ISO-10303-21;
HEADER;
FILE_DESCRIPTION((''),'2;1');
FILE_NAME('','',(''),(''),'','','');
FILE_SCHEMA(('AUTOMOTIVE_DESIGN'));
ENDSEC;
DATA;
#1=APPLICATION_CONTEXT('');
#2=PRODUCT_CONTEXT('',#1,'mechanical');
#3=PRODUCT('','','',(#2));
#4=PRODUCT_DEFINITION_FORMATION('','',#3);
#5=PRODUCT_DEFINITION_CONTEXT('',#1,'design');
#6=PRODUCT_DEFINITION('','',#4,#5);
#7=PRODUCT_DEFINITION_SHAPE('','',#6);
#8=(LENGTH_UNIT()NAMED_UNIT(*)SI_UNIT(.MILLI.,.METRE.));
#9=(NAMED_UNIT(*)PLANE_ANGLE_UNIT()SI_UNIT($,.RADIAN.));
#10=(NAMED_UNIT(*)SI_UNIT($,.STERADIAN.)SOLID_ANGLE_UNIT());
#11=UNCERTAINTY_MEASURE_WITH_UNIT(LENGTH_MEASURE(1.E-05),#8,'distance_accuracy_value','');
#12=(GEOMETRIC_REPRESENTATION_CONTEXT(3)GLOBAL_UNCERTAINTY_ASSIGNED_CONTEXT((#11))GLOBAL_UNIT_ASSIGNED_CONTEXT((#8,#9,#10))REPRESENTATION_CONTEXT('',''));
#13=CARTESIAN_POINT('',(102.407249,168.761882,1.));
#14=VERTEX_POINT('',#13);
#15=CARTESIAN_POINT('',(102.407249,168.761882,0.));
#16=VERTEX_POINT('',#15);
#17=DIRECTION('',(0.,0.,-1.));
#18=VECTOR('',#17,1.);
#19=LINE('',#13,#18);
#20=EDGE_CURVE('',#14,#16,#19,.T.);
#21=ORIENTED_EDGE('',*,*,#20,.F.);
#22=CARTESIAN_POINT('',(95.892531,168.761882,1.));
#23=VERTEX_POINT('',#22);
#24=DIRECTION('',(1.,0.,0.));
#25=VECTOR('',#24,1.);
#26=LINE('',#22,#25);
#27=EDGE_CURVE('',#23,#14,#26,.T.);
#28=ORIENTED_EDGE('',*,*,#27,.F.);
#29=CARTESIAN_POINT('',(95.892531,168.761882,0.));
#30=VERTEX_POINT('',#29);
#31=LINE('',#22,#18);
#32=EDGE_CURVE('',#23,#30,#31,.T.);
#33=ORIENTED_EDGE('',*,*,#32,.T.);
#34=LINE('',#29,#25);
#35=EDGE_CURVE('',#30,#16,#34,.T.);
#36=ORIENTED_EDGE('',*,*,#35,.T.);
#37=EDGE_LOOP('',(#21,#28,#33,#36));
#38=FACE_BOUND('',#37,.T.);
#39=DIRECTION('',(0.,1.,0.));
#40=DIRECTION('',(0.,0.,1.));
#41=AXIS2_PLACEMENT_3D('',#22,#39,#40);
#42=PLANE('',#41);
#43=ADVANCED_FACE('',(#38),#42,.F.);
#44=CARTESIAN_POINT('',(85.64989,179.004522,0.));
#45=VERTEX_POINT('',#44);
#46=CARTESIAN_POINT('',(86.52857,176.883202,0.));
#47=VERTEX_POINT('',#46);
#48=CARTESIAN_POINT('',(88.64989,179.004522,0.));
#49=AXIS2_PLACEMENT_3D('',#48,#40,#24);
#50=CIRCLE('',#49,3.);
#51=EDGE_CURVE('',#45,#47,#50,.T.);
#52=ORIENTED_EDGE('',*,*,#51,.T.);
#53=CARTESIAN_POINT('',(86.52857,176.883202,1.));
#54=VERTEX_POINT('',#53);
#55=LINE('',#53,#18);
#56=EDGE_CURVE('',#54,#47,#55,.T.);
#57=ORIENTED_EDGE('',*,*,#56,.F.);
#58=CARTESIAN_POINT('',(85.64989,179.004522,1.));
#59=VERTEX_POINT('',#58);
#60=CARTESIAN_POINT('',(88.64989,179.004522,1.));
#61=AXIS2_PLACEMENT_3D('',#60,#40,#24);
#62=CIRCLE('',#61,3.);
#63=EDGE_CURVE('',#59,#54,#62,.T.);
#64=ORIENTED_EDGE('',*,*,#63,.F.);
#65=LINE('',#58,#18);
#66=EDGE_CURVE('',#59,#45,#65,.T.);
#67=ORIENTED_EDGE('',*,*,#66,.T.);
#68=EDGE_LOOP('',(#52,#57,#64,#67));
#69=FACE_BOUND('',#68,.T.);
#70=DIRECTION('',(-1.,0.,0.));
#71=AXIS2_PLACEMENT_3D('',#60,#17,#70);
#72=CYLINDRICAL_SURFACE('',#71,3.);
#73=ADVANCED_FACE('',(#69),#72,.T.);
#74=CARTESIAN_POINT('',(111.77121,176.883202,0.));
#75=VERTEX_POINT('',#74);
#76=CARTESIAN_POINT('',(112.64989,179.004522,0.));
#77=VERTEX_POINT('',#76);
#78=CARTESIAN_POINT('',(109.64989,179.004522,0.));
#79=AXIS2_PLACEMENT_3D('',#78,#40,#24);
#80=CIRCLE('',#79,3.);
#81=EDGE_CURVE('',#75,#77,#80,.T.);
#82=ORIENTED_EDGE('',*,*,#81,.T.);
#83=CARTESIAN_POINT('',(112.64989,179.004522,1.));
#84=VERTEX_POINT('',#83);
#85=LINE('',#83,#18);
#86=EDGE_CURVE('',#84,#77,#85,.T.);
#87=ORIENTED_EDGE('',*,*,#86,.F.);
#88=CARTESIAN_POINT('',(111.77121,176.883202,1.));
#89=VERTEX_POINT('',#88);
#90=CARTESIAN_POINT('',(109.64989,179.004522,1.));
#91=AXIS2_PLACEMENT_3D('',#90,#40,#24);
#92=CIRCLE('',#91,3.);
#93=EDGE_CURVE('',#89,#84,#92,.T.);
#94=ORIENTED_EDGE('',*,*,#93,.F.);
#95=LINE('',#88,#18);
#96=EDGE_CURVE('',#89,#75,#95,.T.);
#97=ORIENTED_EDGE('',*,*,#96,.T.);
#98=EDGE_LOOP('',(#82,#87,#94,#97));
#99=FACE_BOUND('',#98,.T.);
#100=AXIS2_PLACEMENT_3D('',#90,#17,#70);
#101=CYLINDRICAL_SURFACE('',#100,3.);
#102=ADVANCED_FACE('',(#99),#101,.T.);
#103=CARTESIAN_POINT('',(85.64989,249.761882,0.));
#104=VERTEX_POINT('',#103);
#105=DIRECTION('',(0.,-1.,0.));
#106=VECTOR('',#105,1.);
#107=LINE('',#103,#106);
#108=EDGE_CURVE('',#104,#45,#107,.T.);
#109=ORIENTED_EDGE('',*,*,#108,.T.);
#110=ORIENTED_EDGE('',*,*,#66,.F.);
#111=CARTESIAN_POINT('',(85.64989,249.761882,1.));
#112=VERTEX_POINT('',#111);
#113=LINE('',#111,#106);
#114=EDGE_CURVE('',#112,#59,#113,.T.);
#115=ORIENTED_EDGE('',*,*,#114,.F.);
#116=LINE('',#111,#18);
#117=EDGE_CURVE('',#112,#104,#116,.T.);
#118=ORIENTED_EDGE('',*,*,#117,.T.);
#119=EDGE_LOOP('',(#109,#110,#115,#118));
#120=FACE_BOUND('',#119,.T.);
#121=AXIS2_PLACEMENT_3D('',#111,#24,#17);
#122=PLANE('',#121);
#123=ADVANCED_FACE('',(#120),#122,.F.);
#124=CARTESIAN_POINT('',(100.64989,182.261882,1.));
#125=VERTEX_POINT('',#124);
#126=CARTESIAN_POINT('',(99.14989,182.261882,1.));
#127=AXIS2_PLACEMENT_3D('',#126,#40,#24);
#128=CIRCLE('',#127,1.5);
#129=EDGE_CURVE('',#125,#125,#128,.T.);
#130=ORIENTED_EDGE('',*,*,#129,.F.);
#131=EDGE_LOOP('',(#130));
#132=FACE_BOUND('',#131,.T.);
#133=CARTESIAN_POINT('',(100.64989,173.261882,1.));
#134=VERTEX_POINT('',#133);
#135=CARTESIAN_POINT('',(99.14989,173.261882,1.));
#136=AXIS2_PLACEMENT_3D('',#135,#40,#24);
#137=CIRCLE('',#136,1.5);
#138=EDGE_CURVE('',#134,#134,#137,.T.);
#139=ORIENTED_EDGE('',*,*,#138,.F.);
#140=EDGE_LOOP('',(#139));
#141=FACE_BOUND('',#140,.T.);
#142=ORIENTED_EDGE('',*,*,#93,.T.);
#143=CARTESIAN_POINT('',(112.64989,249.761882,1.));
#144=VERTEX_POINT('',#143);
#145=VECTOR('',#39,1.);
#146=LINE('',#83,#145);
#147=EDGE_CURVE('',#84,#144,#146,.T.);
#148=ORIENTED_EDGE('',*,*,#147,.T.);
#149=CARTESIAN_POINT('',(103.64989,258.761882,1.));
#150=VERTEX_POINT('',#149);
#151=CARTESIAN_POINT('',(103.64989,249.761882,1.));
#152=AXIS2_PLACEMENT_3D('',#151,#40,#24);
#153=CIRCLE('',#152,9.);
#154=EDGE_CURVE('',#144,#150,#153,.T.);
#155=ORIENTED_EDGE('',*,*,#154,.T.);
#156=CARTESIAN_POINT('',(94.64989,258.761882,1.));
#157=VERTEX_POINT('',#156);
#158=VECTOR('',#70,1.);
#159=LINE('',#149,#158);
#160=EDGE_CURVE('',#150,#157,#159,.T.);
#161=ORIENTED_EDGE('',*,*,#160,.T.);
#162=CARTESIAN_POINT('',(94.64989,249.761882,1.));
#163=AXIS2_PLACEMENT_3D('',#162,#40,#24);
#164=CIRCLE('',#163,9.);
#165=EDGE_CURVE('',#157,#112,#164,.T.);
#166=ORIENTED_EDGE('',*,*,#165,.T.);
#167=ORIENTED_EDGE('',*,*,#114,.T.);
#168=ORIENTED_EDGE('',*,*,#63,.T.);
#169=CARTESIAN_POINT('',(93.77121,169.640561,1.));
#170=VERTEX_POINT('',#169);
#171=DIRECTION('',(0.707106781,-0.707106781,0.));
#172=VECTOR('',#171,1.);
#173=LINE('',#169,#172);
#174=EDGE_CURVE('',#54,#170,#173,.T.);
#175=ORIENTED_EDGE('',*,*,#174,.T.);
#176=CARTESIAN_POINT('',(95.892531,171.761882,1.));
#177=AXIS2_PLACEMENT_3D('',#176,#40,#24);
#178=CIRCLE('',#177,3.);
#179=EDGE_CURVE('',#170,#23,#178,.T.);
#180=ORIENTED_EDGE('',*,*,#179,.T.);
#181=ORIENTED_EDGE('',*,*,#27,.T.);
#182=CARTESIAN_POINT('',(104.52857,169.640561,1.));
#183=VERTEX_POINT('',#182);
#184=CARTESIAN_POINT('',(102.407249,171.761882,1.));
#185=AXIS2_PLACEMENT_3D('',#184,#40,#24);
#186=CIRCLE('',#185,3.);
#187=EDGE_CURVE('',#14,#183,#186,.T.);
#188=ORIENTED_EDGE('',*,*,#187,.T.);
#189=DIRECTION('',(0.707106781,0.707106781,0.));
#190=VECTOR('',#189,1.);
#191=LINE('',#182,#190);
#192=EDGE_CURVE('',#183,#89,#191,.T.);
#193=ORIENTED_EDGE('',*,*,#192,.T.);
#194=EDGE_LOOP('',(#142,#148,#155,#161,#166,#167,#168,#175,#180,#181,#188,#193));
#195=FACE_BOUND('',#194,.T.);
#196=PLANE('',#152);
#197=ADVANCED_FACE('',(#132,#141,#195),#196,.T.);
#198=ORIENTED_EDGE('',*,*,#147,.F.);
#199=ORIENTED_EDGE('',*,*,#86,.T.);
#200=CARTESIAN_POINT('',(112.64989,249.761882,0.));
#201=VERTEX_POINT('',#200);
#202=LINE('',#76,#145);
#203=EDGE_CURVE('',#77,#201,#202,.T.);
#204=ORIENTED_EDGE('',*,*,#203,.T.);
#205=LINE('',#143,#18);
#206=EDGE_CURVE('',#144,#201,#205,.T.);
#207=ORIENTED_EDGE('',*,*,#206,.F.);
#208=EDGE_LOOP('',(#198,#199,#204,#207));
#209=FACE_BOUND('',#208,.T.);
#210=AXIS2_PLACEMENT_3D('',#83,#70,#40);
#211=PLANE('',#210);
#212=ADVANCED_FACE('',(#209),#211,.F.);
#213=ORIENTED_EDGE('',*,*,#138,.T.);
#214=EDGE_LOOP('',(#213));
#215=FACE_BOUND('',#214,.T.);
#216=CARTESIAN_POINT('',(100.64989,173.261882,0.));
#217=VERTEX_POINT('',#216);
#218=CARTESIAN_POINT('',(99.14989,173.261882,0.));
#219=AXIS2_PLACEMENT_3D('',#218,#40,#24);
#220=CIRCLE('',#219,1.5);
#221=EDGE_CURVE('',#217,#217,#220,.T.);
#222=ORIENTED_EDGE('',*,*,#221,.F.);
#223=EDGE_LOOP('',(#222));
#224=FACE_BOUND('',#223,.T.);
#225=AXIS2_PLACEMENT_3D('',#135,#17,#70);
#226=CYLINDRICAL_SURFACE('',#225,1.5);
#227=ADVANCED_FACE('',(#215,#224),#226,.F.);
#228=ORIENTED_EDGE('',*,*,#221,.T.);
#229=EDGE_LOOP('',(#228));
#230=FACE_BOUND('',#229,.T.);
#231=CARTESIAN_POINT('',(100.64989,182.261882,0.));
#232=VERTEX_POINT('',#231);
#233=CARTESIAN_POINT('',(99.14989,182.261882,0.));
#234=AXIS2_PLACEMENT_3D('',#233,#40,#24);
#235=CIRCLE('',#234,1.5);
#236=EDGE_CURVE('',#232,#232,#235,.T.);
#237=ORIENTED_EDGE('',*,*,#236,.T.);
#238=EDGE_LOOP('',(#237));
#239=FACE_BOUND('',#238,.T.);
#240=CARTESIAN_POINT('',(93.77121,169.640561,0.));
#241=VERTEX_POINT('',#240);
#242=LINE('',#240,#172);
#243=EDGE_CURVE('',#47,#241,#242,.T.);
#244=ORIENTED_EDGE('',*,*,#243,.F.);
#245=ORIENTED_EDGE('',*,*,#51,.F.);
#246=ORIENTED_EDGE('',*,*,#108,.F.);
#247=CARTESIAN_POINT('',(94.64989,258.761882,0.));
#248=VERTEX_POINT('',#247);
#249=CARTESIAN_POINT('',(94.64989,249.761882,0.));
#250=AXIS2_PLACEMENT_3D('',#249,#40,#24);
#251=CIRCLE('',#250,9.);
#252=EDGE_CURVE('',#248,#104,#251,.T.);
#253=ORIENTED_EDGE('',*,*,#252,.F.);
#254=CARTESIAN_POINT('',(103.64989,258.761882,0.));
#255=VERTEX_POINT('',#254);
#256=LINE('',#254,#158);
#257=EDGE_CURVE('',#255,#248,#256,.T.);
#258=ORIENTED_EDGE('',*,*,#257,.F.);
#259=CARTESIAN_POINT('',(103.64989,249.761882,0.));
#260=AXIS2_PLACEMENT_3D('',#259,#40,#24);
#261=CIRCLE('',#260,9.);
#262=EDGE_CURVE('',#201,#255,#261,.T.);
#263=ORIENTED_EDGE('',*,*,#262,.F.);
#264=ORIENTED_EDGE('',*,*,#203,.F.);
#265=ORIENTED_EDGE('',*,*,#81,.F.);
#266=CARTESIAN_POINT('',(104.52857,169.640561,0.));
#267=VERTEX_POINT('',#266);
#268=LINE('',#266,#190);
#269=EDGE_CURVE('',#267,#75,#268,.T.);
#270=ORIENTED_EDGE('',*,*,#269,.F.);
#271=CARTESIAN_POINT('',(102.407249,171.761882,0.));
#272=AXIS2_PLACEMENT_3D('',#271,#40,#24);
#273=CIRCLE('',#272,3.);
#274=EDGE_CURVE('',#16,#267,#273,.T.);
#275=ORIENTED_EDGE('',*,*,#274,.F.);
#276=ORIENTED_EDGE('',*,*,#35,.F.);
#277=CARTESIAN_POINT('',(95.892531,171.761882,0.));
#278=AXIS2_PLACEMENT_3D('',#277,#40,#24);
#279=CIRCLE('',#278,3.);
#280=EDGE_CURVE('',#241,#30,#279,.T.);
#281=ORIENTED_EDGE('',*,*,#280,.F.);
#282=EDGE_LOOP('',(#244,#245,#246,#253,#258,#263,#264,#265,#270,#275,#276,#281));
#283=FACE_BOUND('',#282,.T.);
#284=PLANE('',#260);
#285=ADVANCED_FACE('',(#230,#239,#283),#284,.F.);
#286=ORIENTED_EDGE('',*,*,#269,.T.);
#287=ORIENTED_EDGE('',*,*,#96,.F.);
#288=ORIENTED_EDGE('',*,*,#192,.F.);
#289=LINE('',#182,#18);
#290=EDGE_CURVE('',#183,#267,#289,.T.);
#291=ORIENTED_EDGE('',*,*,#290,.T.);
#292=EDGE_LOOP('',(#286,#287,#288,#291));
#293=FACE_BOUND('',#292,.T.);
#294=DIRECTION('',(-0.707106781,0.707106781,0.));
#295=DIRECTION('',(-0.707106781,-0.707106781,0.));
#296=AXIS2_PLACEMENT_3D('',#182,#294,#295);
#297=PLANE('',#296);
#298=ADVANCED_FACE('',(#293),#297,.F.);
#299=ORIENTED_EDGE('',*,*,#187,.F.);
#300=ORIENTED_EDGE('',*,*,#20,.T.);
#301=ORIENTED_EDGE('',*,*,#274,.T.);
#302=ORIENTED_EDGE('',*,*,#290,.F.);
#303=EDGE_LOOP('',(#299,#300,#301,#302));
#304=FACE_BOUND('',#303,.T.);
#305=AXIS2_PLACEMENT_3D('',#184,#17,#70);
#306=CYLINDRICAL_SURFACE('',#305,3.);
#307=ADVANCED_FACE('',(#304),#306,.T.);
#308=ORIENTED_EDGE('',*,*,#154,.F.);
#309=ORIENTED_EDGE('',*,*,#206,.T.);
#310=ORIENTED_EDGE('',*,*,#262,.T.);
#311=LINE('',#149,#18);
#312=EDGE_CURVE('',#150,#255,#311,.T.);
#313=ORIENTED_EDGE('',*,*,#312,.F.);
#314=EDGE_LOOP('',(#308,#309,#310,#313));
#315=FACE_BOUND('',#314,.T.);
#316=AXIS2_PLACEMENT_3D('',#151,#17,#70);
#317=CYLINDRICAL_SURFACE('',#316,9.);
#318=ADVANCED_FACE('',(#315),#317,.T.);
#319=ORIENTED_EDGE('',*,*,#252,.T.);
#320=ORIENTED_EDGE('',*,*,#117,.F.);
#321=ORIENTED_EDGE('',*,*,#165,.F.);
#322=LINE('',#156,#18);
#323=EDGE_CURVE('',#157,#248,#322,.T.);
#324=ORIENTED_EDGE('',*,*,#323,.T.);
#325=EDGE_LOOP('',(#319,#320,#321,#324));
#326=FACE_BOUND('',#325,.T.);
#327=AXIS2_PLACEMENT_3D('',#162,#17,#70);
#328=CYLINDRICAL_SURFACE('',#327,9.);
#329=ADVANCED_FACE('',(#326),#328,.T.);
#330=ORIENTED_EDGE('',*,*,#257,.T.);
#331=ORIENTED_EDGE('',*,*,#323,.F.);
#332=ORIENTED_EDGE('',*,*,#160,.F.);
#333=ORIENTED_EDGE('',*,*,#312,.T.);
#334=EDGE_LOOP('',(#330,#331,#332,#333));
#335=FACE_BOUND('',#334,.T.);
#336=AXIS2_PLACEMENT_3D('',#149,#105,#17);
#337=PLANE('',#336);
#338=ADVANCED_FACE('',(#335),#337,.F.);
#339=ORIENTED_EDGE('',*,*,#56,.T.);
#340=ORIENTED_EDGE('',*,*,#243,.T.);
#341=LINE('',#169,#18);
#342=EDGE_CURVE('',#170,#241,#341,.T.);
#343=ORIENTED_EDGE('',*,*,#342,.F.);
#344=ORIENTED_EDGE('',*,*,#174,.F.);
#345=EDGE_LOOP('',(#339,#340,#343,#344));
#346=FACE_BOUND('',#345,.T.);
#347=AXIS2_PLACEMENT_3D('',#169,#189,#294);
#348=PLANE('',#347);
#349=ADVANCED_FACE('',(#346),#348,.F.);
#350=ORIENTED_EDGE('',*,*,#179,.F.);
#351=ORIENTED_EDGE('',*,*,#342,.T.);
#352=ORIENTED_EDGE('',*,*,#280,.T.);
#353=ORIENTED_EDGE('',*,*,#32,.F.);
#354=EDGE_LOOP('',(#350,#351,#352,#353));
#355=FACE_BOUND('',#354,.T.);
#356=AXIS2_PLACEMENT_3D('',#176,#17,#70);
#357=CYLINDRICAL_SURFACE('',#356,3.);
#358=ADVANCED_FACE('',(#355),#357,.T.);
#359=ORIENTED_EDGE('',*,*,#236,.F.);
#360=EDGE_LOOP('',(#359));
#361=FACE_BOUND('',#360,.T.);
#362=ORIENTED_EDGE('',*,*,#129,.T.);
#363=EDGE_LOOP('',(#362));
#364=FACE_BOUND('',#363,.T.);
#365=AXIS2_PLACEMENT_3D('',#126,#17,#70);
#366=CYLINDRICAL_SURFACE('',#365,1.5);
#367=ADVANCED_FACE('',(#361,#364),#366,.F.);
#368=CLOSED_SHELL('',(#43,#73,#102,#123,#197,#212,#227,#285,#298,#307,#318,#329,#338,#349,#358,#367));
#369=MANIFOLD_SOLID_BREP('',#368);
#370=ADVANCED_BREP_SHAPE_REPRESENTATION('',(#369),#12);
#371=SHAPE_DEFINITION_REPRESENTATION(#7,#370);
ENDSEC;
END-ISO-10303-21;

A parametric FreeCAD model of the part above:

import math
import FreeCAD as App
import Part
import Sketcher

V = App.Vector

doc = App.newDocument("Part")
params = doc.addObject("Spreadsheet::Sheet", "Params")
for row, (alias, value) in enumerate([
    ("sketch1_diameter", "3 mm"),
    ("sketch1_radius", "3 mm"),
    ("sketch1_radius2", "9 mm"),
    ("sketch1_width", "9 mm"),
    ("pad1_length", "1 mm"),
], start=1):
    params.set(f"A{row}", alias)
    params.set(f"B{row}", "=" + value)
    params.setAlias(f"B{row}", alias)

body = doc.addObject("PartDesign::Body", "Body")

sketch1 = body.newObject("Sketcher::SketchObject", "Sketch")
sketch1.AttachmentSupport = (doc.getObject("XY_Plane"), [""])
sketch1.MapMode = "FlatFace"
sketch1.addGeometry([
    Part.LineSegment(V(95.9, 168.8, 0), V(102.4, 168.8, 0)),
    Part.ArcOfCircle(Part.Circle(V(102.4, 171.8, 0), V(0, 0, 1), 3), math.radians(-90), math.radians(-45)),
    Part.LineSegment(V(104.5, 169.6, 0), V(111.8, 176.9, 0)),
    Part.ArcOfCircle(Part.Circle(V(109.6, 179, 0), V(0, 0, 1), 3), math.radians(-45), math.radians(0)),
    Part.LineSegment(V(112.6, 179, 0), V(112.6, 249.8, 0)),
    Part.ArcOfCircle(Part.Circle(V(103.6, 249.8, 0), V(0, 0, 1), 9), math.radians(0), math.radians(90)),
    Part.LineSegment(V(103.6, 258.8, 0), V(94.6, 258.8, 0)),
    Part.ArcOfCircle(Part.Circle(V(94.6, 249.8, 0), V(0, 0, 1), 9), math.radians(90), math.radians(180)),
    Part.LineSegment(V(85.6, 249.8, 0), V(85.6, 179, 0)),
    Part.ArcOfCircle(Part.Circle(V(88.6, 179, 0), V(0, 0, 1), 3), math.radians(180), math.radians(225)),
    Part.LineSegment(V(86.5, 176.9, 0), V(93.8, 169.6, 0)),
    Part.ArcOfCircle(Part.Circle(V(95.9, 171.8, 0), V(0, 0, 1), 3), math.radians(-135), math.radians(-90)),
    Part.Circle(V(99.1, 173.3, 0), V(0, 0, 1), 1.5),
    Part.Circle(V(99.1, 182.3, 0), V(0, 0, 1), 1.5),
], False)
sketch1.addConstraint([
    Sketcher.Constraint("Tangent", 0, 2, 1, 1),
    Sketcher.Constraint("Tangent", 1, 2, 2, 1),
    Sketcher.Constraint("Tangent", 2, 2, 3, 1),
    Sketcher.Constraint("Tangent", 3, 2, 4, 1),
    Sketcher.Constraint("Tangent", 4, 2, 5, 1),
    Sketcher.Constraint("Tangent", 5, 2, 6, 1),
    Sketcher.Constraint("Tangent", 6, 2, 7, 1),
    Sketcher.Constraint("Tangent", 7, 2, 8, 1),
    Sketcher.Constraint("Tangent", 8, 2, 9, 1),
    Sketcher.Constraint("Tangent", 9, 2, 10, 1),
    Sketcher.Constraint("Tangent", 10, 2, 11, 1),
    Sketcher.Constraint("Tangent", 11, 2, 0, 1),
    Sketcher.Constraint("Horizontal", 0),
    Sketcher.Constraint("Vertical", 4),
    Sketcher.Constraint("Horizontal", 6),
    Sketcher.Constraint("Vertical", 8),
    Sketcher.Constraint("Equal", 1, 3),
    Sketcher.Constraint("Equal", 5, 7),
    Sketcher.Constraint("Equal", 3, 9),
    Sketcher.Constraint("Equal", 9, 11),
    Sketcher.Constraint("Equal", 12, 13),
    Sketcher.Constraint("Perpendicular", 2, 10),
    Sketcher.Constraint("Horizontal", 3, 3, 9, 3),
    Sketcher.Constraint("Horizontal", 2, 2, 9, 2),
    Sketcher.Constraint("Vertical", 12, 3, 13, 3),
    Sketcher.Constraint("Diameter", 12, 3.0),
    Sketcher.Constraint("Radius", 1, 3.0),
    Sketcher.Constraint("Radius", 5, 9.0),
    Sketcher.Constraint("DistanceX", 6, 2, 6, 1, 9.0),
    Sketcher.Constraint("DistanceY", 1, 3, 5, 3, 78.0),
    Sketcher.Constraint("DistanceY", 12, 3, 13, 3, 9.0),
    Sketcher.Constraint("DistanceY", 1, 3, 12, 3, 1.5),
    Sketcher.Constraint("DistanceX", 12, 3, 3, 3, 10.5),
    Sketcher.Constraint("DistanceX", 0, 1, 0, 2, 6.514719),
    Sketcher.Constraint("DistanceY", -1, 1, 2, 2, 176.883202),
    Sketcher.Constraint("DistanceX", -1, 1, 1, 3, 102.407249),
])
sketch1.setExpression("Constraints[25]", "Params.sketch1_diameter")
sketch1.setExpression("Constraints[26]", "Params.sketch1_radius")
sketch1.setExpression("Constraints[27]", "Params.sketch1_radius2")
sketch1.setExpression("Constraints[28]", "Params.sketch1_width")
pad1 = body.newObject("PartDesign::Pad", "Pad")
pad1.Profile = sketch1
pad1.setExpression("Length", "Params.pad1_length")

doc.recompute()
